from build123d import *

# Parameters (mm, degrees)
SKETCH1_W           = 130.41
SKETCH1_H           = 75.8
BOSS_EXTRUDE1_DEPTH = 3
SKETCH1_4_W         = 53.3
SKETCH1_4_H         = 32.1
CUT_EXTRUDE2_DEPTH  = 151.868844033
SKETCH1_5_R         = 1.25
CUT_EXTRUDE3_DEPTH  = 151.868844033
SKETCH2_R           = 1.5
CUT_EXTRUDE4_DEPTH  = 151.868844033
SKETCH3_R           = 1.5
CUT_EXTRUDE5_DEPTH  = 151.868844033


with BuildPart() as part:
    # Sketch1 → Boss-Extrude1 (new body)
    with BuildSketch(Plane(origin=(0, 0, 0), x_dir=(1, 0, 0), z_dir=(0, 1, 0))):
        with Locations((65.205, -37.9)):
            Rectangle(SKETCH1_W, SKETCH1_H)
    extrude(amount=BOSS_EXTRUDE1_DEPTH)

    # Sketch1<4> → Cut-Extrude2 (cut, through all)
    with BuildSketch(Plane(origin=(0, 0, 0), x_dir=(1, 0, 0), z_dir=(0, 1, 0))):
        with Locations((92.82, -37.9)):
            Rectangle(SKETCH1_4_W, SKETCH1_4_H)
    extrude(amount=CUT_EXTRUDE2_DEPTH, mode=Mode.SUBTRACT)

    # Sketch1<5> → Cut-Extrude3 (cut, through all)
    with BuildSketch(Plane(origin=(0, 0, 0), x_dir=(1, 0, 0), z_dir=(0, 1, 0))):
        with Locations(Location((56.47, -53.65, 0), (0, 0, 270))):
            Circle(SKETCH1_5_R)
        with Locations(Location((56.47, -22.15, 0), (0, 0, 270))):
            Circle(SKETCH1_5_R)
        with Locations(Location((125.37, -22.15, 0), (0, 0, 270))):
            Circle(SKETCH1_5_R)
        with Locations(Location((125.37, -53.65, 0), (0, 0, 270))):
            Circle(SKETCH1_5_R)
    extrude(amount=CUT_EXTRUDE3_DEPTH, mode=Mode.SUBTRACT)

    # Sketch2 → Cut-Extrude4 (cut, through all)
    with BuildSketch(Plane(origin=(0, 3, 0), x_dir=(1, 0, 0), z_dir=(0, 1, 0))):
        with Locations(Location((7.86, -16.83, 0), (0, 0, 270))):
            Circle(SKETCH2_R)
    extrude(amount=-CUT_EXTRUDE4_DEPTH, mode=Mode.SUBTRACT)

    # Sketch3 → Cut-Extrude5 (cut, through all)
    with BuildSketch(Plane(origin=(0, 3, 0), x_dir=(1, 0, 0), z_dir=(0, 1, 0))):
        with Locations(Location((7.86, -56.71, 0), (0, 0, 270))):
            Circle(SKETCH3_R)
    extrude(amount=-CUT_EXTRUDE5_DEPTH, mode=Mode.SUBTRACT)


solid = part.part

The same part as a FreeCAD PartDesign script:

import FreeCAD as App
import Part
import Sketcher
from FreeCAD import Vector

doc = App.newDocument("Part")
body = doc.addObject("PartDesign::Body", "Body")

# Sketch on XZ plane
sketch1 = body.newObject("Sketcher::SketchObject", "Sketch")
sketch1.AttachmentSupport = (doc.getObject("XZ_Plane"), [""])
sketch1.MapMode = "FlatFace"
sketch1.addGeometry(Part.LineSegment(Vector(0, 0, 0), Vector(0, 75.8, 0)), False)
sketch1.addGeometry(Part.LineSegment(Vector(0, 75.8, 0), Vector(130.41, 75.8, 0)), False)
sketch1.addGeometry(Part.LineSegment(Vector(130.41, 75.8, 0), Vector(130.41, 0, 0)), False)
sketch1.addGeometry(Part.LineSegment(Vector(130.41, 0, 0), Vector(0, 0, 0)), False)
sketch1.addConstraint(Sketcher.Constraint("Coincident", 0, 2, 1, 1))
sketch1.addConstraint(Sketcher.Constraint("Coincident", 1, 2, 2, 1))
sketch1.addConstraint(Sketcher.Constraint("Coincident", 2, 2, 3, 1))
sketch1.addConstraint(Sketcher.Constraint("Coincident", 3, 2, 0, 1))
sketch1.addConstraint(Sketcher.Constraint("Vertical", 0))
sketch1.addConstraint(Sketcher.Constraint("Horizontal", 1))
sketch1.addConstraint(Sketcher.Constraint("Vertical", 2))
sketch1.addConstraint(Sketcher.Constraint("Horizontal", 3))
sketch1.addConstraint(Sketcher.Constraint("Coincident", 3, 2, -1, 1))
sketch1.addConstraint(Sketcher.Constraint("DistanceY", 0, 1, 0, 2, 75.8))
sketch1.addConstraint(Sketcher.Constraint("DistanceX", 1, 1, 1, 2, 130.41))
pad1 = body.newObject("PartDesign::Pad", "Pad")
pad1.Profile = sketch1
pad1.Length = 3
pad1.Reversed = True

# Sketch on XZ plane
sketch2 = body.newObject("Sketcher::SketchObject", "Sketch001")
sketch2.AttachmentSupport = (doc.getObject("XZ_Plane"), [""])
sketch2.MapMode = "FlatFace"
sketch2.addGeometry(Part.LineSegment(Vector(66.17, 21.85, 0), Vector(66.17, 53.95, 0)), False)
sketch2.addGeometry(Part.LineSegment(Vector(66.17, 53.95, 0), Vector(119.47, 53.95, 0)), False)
sketch2.addGeometry(Part.LineSegment(Vector(119.47, 53.95, 0), Vector(119.47, 21.85, 0)), False)
sketch2.addGeometry(Part.LineSegment(Vector(119.47, 21.85, 0), Vector(66.17, 21.85, 0)), False)
sketch2.addConstraint(Sketcher.Constraint("Coincident", 0, 2, 1, 1))
sketch2.addConstraint(Sketcher.Constraint("Coincident", 1, 2, 2, 1))
sketch2.addConstraint(Sketcher.Constraint("Coincident", 2, 2, 3, 1))
sketch2.addConstraint(Sketcher.Constraint("Coincident", 3, 2, 0, 1))
sketch2.addConstraint(Sketcher.Constraint("Vertical", 0))
sketch2.addConstraint(Sketcher.Constraint("Horizontal", 1))
sketch2.addConstraint(Sketcher.Constraint("Vertical", 2))
sketch2.addConstraint(Sketcher.Constraint("Horizontal", 3))
sketch2.addConstraint(Sketcher.Constraint("DistanceX", 1, 1, 1, 2, 53.3))
sketch2.addConstraint(Sketcher.Constraint("DistanceY", 0, 1, 0, 2, 32.1))
sketch2.addConstraint(Sketcher.Constraint("DistanceX", -1, 1, 0, 2, 66.17))
sketch2.addConstraint(Sketcher.Constraint("DistanceY", -1, 1, 0, 2, 53.95))
pocket1 = body.newObject("PartDesign::Pocket", "Pocket")
pocket1.Profile = sketch2
pocket1.Type = "ThroughAll"

# Sketch on XZ plane
sketch3 = body.newObject("Sketcher::SketchObject", "Sketch002")
sketch3.AttachmentSupport = (doc.getObject("XZ_Plane"), [""])
sketch3.MapMode = "FlatFace"
sketch3.addGeometry(Part.Circle(Vector(56.47, 53.65, 0), Vector(0, 0, 1), 1.25), False)
sketch3.addGeometry(Part.Circle(Vector(56.47, 22.15, 0), Vector(0, 0, 1), 1.25), False)
sketch3.addGeometry(Part.Circle(Vector(125.37, 22.15, 0), Vector(0, 0, 1), 1.25), False)
sketch3.addGeometry(Part.Circle(Vector(125.37, 53.65, 0), Vector(0, 0, 1), 1.25), False)
sketch3.addConstraint(Sketcher.Constraint("Equal", 0, 1))
sketch3.addConstraint(Sketcher.Constraint("Equal", 1, 2))
sketch3.addConstraint(Sketcher.Constraint("Equal", 2, 3))
sketch3.addConstraint(Sketcher.Constraint("Horizontal", 1, 3, 2, 3))
sketch3.addConstraint(Sketcher.Constraint("Horizontal", 0, 3, 3, 3))
sketch3.addConstraint(Sketcher.Constraint("Vertical", 0, 3, 1, 3))
sketch3.addConstraint(Sketcher.Constraint("Vertical", 2, 3, 3, 3))
sketch3.addConstraint(Sketcher.Constraint("Diameter", 0, 2.5))
sketch3.addConstraint(Sketcher.Constraint("DistanceY", 1, 3, 0, 3, 31.5))
sketch3.addConstraint(Sketcher.Constraint("DistanceX", 1, 3, 2, 3, 68.9))
sketch3.addConstraint(Sketcher.Constraint("DistanceX", -1, 1, 0, 3, 56.47))
sketch3.addConstraint(Sketcher.Constraint("DistanceY", -1, 1, 0, 3, 53.65))
pocket2 = body.newObject("PartDesign::Pocket", "Pocket001")
pocket2.Profile = sketch3
pocket2.Type = "ThroughAll"

# Sketch on XZ plane
sketch4 = body.newObject("Sketcher::SketchObject", "Sketch003")
sketch4.AttachmentSupport = (doc.getObject("XZ_Plane"), [""])
sketch4.MapMode = "FlatFace"
sketch4.AttachmentOffset = App.Placement(Vector(0, 0, -3), App.Rotation())
sketch4.addGeometry(Part.Circle(Vector(7.86, 16.83, 0), Vector(0, 0, 1), 1.5), False)
sketch4.addConstraint(Sketcher.Constraint("Diameter", 0, 3.0))
sketch4.addConstraint(Sketcher.Constraint("DistanceX", -1, 1, 0, 3, 7.86))
sketch4.addConstraint(Sketcher.Constraint("DistanceY", -1, 1, 0, 3, 16.83))
pocket3 = body.newObject("PartDesign::Pocket", "Pocket002")
pocket3.Profile = sketch4
pocket3.Type = "ThroughAll"
pocket3.Reversed = True

# Sketch on XZ plane
sketch5 = body.newObject("Sketcher::SketchObject", "Sketch004")
sketch5.AttachmentSupport = (doc.getObject("XZ_Plane"), [""])
sketch5.MapMode = "FlatFace"
sketch5.AttachmentOffset = App.Placement(Vector(0, 0, -3), App.Rotation())
sketch5.addGeometry(Part.Circle(Vector(7.86, 56.71, 0), Vector(0, 0, 1), 1.5), False)
sketch5.addConstraint(Sketcher.Constraint("Diameter", 0, 3.0))
sketch5.addConstraint(Sketcher.Constraint("DistanceX", -1, 1, 0, 3, 7.86))
sketch5.addConstraint(Sketcher.Constraint("DistanceY", -1, 1, 0, 3, 56.71))
pocket4 = body.newObject("PartDesign::Pocket", "Pocket003")
pocket4.Profile = sketch5
pocket4.Type = "ThroughAll"
pocket4.Reversed = True

doc.recompute()
